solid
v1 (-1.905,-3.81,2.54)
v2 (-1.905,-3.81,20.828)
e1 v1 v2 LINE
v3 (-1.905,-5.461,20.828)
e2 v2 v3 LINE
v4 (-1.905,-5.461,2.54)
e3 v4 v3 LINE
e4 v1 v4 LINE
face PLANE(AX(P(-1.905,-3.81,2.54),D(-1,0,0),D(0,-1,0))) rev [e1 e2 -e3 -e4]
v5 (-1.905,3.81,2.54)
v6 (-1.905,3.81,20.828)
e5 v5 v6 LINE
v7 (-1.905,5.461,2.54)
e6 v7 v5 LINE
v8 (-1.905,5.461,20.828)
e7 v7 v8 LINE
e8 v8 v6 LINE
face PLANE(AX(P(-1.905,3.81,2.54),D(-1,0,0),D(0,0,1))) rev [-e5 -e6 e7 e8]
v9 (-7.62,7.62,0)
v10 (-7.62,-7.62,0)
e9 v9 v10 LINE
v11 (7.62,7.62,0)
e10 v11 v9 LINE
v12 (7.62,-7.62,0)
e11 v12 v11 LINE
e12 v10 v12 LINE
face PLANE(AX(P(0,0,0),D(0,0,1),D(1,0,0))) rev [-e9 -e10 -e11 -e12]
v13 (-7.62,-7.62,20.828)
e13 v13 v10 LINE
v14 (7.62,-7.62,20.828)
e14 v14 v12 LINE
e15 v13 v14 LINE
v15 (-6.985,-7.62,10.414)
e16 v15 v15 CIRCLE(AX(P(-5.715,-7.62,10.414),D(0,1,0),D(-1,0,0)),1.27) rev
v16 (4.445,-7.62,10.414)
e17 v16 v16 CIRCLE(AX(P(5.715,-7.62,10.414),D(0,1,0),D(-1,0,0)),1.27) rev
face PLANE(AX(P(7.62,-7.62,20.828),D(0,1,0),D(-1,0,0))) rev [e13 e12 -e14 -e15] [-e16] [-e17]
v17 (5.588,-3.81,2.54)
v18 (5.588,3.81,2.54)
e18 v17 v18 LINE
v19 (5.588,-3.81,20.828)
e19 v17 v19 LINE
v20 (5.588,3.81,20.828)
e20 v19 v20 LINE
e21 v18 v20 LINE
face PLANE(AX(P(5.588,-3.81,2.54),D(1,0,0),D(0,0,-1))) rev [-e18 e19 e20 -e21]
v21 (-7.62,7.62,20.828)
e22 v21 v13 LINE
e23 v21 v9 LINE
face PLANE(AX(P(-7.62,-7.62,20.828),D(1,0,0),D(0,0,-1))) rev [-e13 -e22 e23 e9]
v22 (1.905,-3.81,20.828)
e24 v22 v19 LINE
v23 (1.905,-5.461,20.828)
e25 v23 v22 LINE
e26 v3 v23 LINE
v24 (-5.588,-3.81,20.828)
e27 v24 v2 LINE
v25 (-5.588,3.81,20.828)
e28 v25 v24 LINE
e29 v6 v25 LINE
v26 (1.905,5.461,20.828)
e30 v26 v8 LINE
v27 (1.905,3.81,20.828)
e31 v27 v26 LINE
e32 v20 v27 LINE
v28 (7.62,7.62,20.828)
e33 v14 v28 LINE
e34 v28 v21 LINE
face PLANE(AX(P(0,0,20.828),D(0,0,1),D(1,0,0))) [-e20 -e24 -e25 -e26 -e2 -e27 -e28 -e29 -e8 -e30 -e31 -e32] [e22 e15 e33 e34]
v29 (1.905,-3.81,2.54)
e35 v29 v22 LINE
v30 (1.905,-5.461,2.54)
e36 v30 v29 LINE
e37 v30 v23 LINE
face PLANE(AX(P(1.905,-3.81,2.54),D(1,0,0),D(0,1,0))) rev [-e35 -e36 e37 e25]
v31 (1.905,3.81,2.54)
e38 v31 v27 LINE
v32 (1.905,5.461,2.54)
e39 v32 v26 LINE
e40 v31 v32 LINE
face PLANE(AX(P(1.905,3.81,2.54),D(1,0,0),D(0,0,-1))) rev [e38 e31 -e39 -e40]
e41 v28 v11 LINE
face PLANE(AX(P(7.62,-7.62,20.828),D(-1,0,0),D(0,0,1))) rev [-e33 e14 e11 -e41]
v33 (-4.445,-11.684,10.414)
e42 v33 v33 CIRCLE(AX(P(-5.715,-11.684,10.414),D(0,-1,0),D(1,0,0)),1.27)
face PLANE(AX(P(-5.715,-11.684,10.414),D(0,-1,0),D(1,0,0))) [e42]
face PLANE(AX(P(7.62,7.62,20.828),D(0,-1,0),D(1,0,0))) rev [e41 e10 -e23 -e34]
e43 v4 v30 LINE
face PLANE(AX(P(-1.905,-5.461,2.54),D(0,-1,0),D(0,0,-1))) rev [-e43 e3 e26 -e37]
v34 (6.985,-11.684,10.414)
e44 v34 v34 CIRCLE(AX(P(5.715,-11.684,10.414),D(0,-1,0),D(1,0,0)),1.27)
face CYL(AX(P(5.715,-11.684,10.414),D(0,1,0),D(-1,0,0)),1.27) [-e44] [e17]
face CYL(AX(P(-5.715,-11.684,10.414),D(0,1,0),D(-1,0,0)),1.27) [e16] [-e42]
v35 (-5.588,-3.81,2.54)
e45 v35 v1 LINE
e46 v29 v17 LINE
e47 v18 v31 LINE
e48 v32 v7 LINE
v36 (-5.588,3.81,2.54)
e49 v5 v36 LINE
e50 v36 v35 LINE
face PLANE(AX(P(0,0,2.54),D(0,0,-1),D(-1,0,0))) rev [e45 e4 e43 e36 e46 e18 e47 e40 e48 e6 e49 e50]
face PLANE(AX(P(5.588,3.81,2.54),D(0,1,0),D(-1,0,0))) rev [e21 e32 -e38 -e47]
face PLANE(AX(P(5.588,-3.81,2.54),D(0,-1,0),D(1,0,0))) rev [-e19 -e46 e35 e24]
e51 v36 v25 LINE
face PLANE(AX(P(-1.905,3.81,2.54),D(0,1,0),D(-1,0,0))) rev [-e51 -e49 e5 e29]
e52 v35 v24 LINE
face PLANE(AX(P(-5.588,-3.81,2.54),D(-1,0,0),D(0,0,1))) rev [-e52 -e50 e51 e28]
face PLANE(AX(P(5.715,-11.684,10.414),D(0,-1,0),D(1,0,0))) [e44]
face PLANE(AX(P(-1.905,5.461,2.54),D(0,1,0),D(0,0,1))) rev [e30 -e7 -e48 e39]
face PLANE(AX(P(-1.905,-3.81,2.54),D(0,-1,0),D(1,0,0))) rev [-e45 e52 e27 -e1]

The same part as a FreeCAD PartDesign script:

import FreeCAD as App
import Part
import Sketcher
from FreeCAD import Vector
Q = App.Units.Quantity


def add_polygon(sketch, points):
    """Adds a closed chain of lines whose ends are joined by coincident constraints."""
    first, n = sketch.GeometryCount, len(points)
    for a, b in zip(points, points[1:] + points[:1]):
        sketch.addGeometry(Part.LineSegment(App.Vector(*a, 0), App.Vector(*b, 0)), False)
    for i in range(n):
        sketch.addConstraint(Sketcher.Constraint("Coincident", first + i, 2, first + (i + 1) % n, 1))

doc = App.newDocument("Part")
body = doc.addObject("PartDesign::Body", "Body")

sketch1 = body.newObject("Sketcher::SketchObject", "Sketch")
sketch1.AttachmentSupport = (doc.getObject("XY_Plane"), [""])
sketch1.MapMode = "FlatFace"
add_polygon(sketch1, [(-7.62, 7.62), (-7.62, -7.62), (7.62, -7.62), (7.62, 7.62)])
sketch1.addConstraint([
    Sketcher.Constraint("Vertical", 0),
    Sketcher.Constraint("Horizontal", 1),
    Sketcher.Constraint("Vertical", 2),
    Sketcher.Constraint("Horizontal", 3),
    Sketcher.Constraint("Symmetric", 0, 2, 2, 2, -1, 1),
    Sketcher.Constraint("Equal", 3, 0),
    Sketcher.Constraint("DistanceX", 1, 1, 1, 2, Q("0.6 in")),
])
pad1 = body.newObject("PartDesign::Pad", "Pad")
pad1.Profile = sketch1
pad1.Length = Q("0.82 in")

sketch2 = body.newObject("Sketcher::SketchObject", "Sketch001")
sketch2.AttachmentSupport = (doc.getObject("XY_Plane"), [""])
sketch2.MapMode = "FlatFace"
sketch2.AttachmentOffset = App.Placement(Vector(0, 0, 0.82 * 25.4), App.Rotation())
add_polygon(sketch2, [(1.905, -3.81), (5.588, -3.81), (5.588, 3.81), (1.905, 3.81), (1.905, 5.461), (-1.905, 5.461), (-1.905, 3.81), (-5.588, 3.81), (-5.588, -3.81), (-1.905, -3.81), (-1.905, -5.461), (1.905, -5.461)])
sketch2.addConstraint([
    Sketcher.Constraint("Horizontal", 0),
    Sketcher.Constraint("Vertical", 1),
    Sketcher.Constraint("Horizontal", 2),
    Sketcher.Constraint("Vertical", 3),
    Sketcher.Constraint("Horizontal", 4),
    Sketcher.Constraint("Vertical", 5),
    Sketcher.Constraint("Horizontal", 6),
    Sketcher.Constraint("Vertical", 7),
    Sketcher.Constraint("Horizontal", 8),
    Sketcher.Constraint("Vertical", 9),
    Sketcher.Constraint("Horizontal", 10),
    Sketcher.Constraint("Vertical", 11),
    Sketcher.Constraint("Symmetric", 0, 2, 6, 2, -1, 1),
    Sketcher.Constraint("Symmetric", 2, 2, 8, 2, -1, 1),
    Sketcher.Constraint("Symmetric", 4, 2, 10, 2, -1, 1),
    Sketcher.Constraint("Symmetric", 2, 2, 5, 2, -2),
    Sketcher.Constraint("DistanceY", 1, 1, 1, 2, Q("0.3 in")),
    Sketcher.Constraint("DistanceX", 4, 2, 4, 1, Q("0.15 in")),
    Sketcher.Constraint("DistanceX", 0, 1, 0, 2, Q("0.145 in")),
    Sketcher.Constraint("DistanceY", 3, 1, 3, 2, Q("0.065 in")),
])
pocket1 = body.newObject("PartDesign::Pocket", "Pocket")
pocket1.Profile = sketch2
pocket1.Length = Q("0.72 in")

sketch3 = body.newObject("Sketcher::SketchObject", "Sketch002")
sketch3.AttachmentSupport = (doc.getObject("XZ_Plane"), [""])
sketch3.MapMode = "FlatFace"
sketch3.AttachmentOffset = App.Placement(Vector(0, 0, 0.3 * 25.4), App.Rotation())
sketch3.addGeometry([
    Part.Circle(Vector(-5.715, 10.414, 0), Vector(0, 0, 1), 1.27),
    Part.Circle(Vector(5.715, 10.414, 0), Vector(0, 0, 1), 1.27),
], False)
sketch3.addConstraint([
    Sketcher.Constraint("Equal", 0, 1),
    Sketcher.Constraint("Symmetric", 0, 3, 1, 3, -2),
    Sketcher.Constraint("Diameter", 0, Q("0.1 in")),
    Sketcher.Constraint("DistanceY", -1, 1, 0, 3, Q("0.41 in")),
    Sketcher.Constraint("DistanceX", 0, 3, 1, 3, Q("0.45 in")),
])
pad2 = body.newObject("PartDesign::Pad", "Pad001")
pad2.Profile = sketch3
pad2.Length = Q("0.16 in")

doc.recompute()
